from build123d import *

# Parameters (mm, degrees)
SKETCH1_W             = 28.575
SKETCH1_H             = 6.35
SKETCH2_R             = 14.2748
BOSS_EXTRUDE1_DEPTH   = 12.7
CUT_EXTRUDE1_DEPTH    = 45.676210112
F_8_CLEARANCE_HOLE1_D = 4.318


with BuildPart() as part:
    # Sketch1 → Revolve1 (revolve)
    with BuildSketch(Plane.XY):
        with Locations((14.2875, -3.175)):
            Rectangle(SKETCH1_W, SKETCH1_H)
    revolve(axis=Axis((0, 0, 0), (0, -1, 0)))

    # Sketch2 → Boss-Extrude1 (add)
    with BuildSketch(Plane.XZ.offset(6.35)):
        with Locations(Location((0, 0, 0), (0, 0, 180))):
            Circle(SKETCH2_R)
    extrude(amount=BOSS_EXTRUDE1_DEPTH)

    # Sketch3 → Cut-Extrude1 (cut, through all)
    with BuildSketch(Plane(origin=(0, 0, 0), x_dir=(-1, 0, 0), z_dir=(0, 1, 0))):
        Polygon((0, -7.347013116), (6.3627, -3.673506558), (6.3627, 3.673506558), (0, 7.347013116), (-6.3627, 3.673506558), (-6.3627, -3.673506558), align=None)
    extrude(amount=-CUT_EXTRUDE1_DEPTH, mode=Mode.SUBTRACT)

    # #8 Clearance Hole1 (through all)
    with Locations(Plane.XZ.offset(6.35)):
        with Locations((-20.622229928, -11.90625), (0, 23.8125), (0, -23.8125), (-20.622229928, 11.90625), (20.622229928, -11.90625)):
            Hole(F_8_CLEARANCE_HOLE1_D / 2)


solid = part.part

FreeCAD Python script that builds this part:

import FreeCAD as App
import Part
import Sketcher
Q = App.Units.Quantity

doc = App.newDocument("Part")
params = doc.addObject("Spreadsheet::Sheet", "Params")
for row, (alias, value) in enumerate([
    ("sketch1_height", "0.25 in"),
    ("sketch1_width", "1.125 in"),
    ("revolution_angle", "360 deg"),
    ("sketch2_diameter", "1.124 in"),
    ("pad1_length", "0.5 in"),
    ("sketch4_diameter", "0.17 in"),
    ("hole_diameter", "0.17 in"),
], start=1):
    params.set(f"A{row}", alias)
    params.set(f"B{row}", "=" + value)
    params.setAlias(f"B{row}", alias)

body = doc.addObject("PartDesign::Body", "Body")

# Sketch on XY plane
sketch1 = body.newObject("Sketcher::SketchObject", "Sketch")
sketch1.AttachmentSupport = (doc.getObject("XY_Plane"), [""])
sketch1.MapMode = "FlatFace"
sketch1.addGeometry(Part.LineSegment(App.Vector(0, 0, 0), App.Vector(0, -6, 0)), False)
sketch1.addGeometry(Part.LineSegment(App.Vector(0, -6, 0), App.Vector(29, -6, 0)), False)
sketch1.addGeometry(Part.LineSegment(App.Vector(29, -6, 0), App.Vector(29, 0, 0)), False)
sketch1.addGeometry(Part.LineSegment(App.Vector(29, 0, 0), App.Vector(0, 0, 0)), False)
sketch1.addConstraint(Sketcher.Constraint("Coincident", 0, 2, 1, 1))
sketch1.addConstraint(Sketcher.Constraint("Coincident", 1, 2, 2, 1))
sketch1.addConstraint(Sketcher.Constraint("Coincident", 2, 2, 3, 1))
sketch1.addConstraint(Sketcher.Constraint("Coincident", 3, 2, 0, 1))
sketch1.addConstraint(Sketcher.Constraint("Vertical", 0))
sketch1.addConstraint(Sketcher.Constraint("Horizontal", 1))
sketch1.addConstraint(Sketcher.Constraint("Vertical", 2))
sketch1.addConstraint(Sketcher.Constraint("Horizontal", 3))
sketch1.addConstraint(Sketcher.Constraint("Coincident", 3, 2, -1, 1))
sketch1.addConstraint(Sketcher.Constraint("DistanceY", 0, 2, 0, 1, Q("0.25 in")))
sketch1.addConstraint(Sketcher.Constraint("DistanceX", 1, 1, 1, 2, Q("1.125 in")))
sketch1.setExpression("Constraints[9]", "Params.sketch1_height")
sketch1.setExpression("Constraints[10]", "Params.sketch1_width")
revolution = body.newObject("PartDesign::Revolution", "Revolution")
revolution.Profile = sketch1
revolution.ReferenceAxis = (sketch1, ["V_Axis"])
revolution.setExpression("Angle", "Params.revolution_angle")

# Sketch on XZ plane
sketch2 = body.newObject("Sketcher::SketchObject", "Sketch001")
sketch2.AttachmentSupport = (doc.getObject("XZ_Plane"), [""])
sketch2.MapMode = "FlatFace"
sketch2.AttachmentOffset = App.Placement(App.Vector(0, 0, 0.25 * 25.4), App.Rotation())
sketch2.addGeometry(Part.Circle(App.Vector(0, 0, 0), App.Vector(0, 0, 1), 14), False)
sketch2.addConstraint(Sketcher.Constraint("Coincident", 0, 3, -1, 1))
sketch2.addConstraint(Sketcher.Constraint("Diameter", 0, Q("1.124 in")))
sketch2.setExpression("Constraints[1]", "Params.sketch2_diameter")
pad1 = body.newObject("PartDesign::Pad", "Pad")
pad1.Profile = sketch2
pad1.setExpression("Length", "Params.pad1_length")

# Sketch on XZ plane
sketch3 = body.newObject("Sketcher::SketchObject", "Sketch002")
sketch3.AttachmentSupport = (doc.getObject("XZ_Plane"), [""])
sketch3.MapMode = "FlatFace"
sketch3.addGeometry(Part.LineSegment(App.Vector(0, -7, 0), App.Vector(-6, -4, 0)), False)
sketch3.addGeometry(Part.LineSegment(App.Vector(-6, -4, 0), App.Vector(-6, 4, 0)), False)
sketch3.addGeometry(Part.LineSegment(App.Vector(-6, 4, 0), App.Vector(0, 7, 0)), False)
sketch3.addGeometry(Part.LineSegment(App.Vector(0, 7, 0), App.Vector(6, 4, 0)), False)
sketch3.addGeometry(Part.LineSegment(App.Vector(6, 4, 0), App.Vector(6, -4, 0)), False)
sketch3.addGeometry(Part.LineSegment(App.Vector(6, -4, 0), App.Vector(0, -7, 0)), False)
sketch3.addConstraint(Sketcher.Constraint("Coincident", 0, 2, 1, 1))
sketch3.addConstraint(Sketcher.Constraint("Coincident", 1, 2, 2, 1))
sketch3.addConstraint(Sketcher.Constraint("Coincident", 2, 2, 3, 1))
sketch3.addConstraint(Sketcher.Constraint("Coincident", 3, 2, 4, 1))
sketch3.addConstraint(Sketcher.Constraint("Coincident", 4, 2, 5, 1))
sketch3.addConstraint(Sketcher.Constraint("Coincident", 5, 2, 0, 1))
sketch3.addConstraint(Sketcher.Constraint("Vertical", 1))
sketch3.addConstraint(Sketcher.Constraint("Vertical", 4))
sketch3.addConstraint(Sketcher.Constraint("Symmetric", 0, 2, 3, 2, -1, 1))
sketch3.addConstraint(Sketcher.Constraint("Symmetric", 2, 2, 5, 2, -1, 1))
sketch3.addConstraint(Sketcher.Constraint("PointOnObject", 2, 2, -2))
sketch3.addConstraint(Sketcher.Constraint("Parallel", 2, 5))
sketch3.addConstraint(Sketcher.Constraint("Horizontal", 1, 2, 3, 2))
sketch3.addConstraint(Sketcher.Constraint("Angle", 0, Q("150 deg")))
sketch3.addConstraint(Sketcher.Constraint("DistanceX", 1, 2, 3, 2, Q("0.501 in")))
sketch3.addConstraint(Sketcher.Constraint("DistanceY", 1, 1, 1, 2, Q("7.347013 mm")))
pocket1 = body.newObject("PartDesign::Pocket", "Pocket")
pocket1.Profile = sketch3
pocket1.Type = "ThroughAll"
pocket1.Reversed = True

# Sketch on XZ plane
sketch4 = body.newObject("Sketcher::SketchObject", "Sketch003")
sketch4.AttachmentSupport = (doc.getObject("XZ_Plane"), [""])
sketch4.MapMode = "FlatFace"
sketch4.AttachmentOffset = App.Placement(App.Vector(0, 0, 0.25 * 25.4), App.Rotation())
sketch4.addGeometry(Part.Circle(App.Vector(-20.6, -11.9, 0), App.Vector(0, 0, 1), 2.2), False)
sketch4.addGeometry(Part.Circle(App.Vector(0, 23.8, 0), App.Vector(0, 0, 1), 2.2), False)
sketch4.addGeometry(Part.Circle(App.Vector(0, -23.8, 0), App.Vector(0, 0, 1), 2.2), False)
sketch4.addGeometry(Part.Circle(App.Vector(-20.6, 11.9, 0), App.Vector(0, 0, 1), 2.2), False)
sketch4.addGeometry(Part.Circle(App.Vector(20.6, -11.9, 0), App.Vector(0, 0, 1), 2.2), False)
sketch4.addConstraint(Sketcher.Constraint("Equal", 0, 1))
sketch4.addConstraint(Sketcher.Constraint("Equal", 1, 2))
sketch4.addConstraint(Sketcher.Constraint("Equal", 2, 3))
sketch4.addConstraint(Sketcher.Constraint("Equal", 3, 4))
sketch4.addConstraint(Sketcher.Constraint("Symmetric", 1, 3, 2, 3, -1, 1))
sketch4.addConstraint(Sketcher.Constraint("Symmetric", 3, 3, 4, 3, -1, 1))
sketch4.addConstraint(Sketcher.Constraint("Symmetric", 0, 3, 4, 3, -2))
sketch4.addConstraint(Sketcher.Constraint("PointOnObject", 1, 3, -2))
sketch4.addConstraint(Sketcher.Constraint("Diameter", 0, Q("0.17 in")))
sketch4.addConstraint(Sketcher.Constraint("DistanceY", 0, 3, -1, 1, Q("0.46875 in")))
sketch4.addConstraint(Sketcher.Constraint("DistanceY", -1, 1, 1, 3, Q("0.9375 in")))
sketch4.addConstraint(Sketcher.Constraint("DistanceX", 0, 3, -1, 1, Q("20.62223 mm")))
sketch4.setExpression("Constraints[8]", "Params.sketch4_diameter")
doc.recompute()
hole = body.newObject("PartDesign::Hole", "Hole")
hole.Profile = sketch4
hole.ThreadType = "None"
hole.setExpression("Diameter", "Params.hole_diameter")
hole.DepthType = "ThroughAll"

doc.recompute()
